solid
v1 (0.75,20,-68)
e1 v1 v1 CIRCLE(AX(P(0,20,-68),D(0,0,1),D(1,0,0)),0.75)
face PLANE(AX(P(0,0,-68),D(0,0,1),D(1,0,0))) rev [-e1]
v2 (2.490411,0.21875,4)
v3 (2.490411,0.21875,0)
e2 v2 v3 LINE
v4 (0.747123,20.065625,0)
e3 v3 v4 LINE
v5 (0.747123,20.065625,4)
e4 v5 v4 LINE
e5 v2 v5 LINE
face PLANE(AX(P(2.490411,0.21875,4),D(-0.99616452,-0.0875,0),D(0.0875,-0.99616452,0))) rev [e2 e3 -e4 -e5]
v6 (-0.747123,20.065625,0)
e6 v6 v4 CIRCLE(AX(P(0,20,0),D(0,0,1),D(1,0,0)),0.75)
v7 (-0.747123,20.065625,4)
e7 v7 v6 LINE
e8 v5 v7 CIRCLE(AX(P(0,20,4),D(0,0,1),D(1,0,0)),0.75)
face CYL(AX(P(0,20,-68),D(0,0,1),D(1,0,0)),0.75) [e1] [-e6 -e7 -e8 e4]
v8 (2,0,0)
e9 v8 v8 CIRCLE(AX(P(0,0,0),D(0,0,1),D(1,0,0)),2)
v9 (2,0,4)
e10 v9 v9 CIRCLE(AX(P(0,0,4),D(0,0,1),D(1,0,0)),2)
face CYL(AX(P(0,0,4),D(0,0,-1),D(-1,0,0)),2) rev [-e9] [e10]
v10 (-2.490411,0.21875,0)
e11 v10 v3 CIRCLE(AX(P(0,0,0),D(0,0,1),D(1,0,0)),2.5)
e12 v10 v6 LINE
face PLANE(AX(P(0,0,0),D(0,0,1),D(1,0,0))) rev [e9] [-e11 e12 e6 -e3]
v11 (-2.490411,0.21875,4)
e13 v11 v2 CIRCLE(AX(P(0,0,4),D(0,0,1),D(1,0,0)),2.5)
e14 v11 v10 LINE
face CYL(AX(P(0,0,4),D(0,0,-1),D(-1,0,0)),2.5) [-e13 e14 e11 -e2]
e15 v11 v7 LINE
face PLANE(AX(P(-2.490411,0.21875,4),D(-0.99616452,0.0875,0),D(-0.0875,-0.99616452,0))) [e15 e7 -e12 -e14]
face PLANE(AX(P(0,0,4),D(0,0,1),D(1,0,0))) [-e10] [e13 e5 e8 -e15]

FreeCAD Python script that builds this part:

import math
import FreeCAD as App
import Part
import Sketcher
from FreeCAD import Vector
Q = App.Units.Quantity

doc = App.newDocument("Part")
body = doc.addObject("PartDesign::Body", "Body")

# Sketch on XY plane
sketch1 = body.newObject("Sketcher::SketchObject", "Sketch")
sketch1.AttachmentSupport = (doc.getObject("XY_Plane"), [""])
sketch1.MapMode = "FlatFace"
sketch1.addGeometry(Part.LineSegment(Vector(-0.747123, 20.065625, 0), Vector(-2.490411, 0.21875, 0)), False)
sketch1.addGeometry(Part.ArcOfCircle(Part.Circle(Vector(0, 0, 0), Vector(0, 0, 1), 2.5), math.radians(174.9802), math.radians(365.0198)), False)
sketch1.addGeometry(Part.LineSegment(Vector(2.490411, 0.21875, 0), Vector(0.747123, 20.065625, 0)), False)
sketch1.addGeometry(Part.ArcOfCircle(Part.Circle(Vector(0, 20, 0), Vector(0, 0, 1), 0.75), math.radians(174.9802), math.radians(365.0198)), False)
sketch1.addGeometry(Part.Circle(Vector(0, 0, 0), Vector(0, 0, 1), 2), False)
sketch1.addConstraint(Sketcher.Constraint("Tangent", 0, 2, 1, 1))
sketch1.addConstraint(Sketcher.Constraint("Tangent", 1, 2, 2, 1))
sketch1.addConstraint(Sketcher.Constraint("Tangent", 2, 2, 3, 2))
sketch1.addConstraint(Sketcher.Constraint("Tangent", 3, 1, 0, 1))
sketch1.addConstraint(Sketcher.Constraint("Coincident", 1, 3, -1, 1))
sketch1.addConstraint(Sketcher.Constraint("Coincident", 4, 3, -1, 1))
sketch1.addConstraint(Sketcher.Constraint("PointOnObject", 3, 3, -2))
sketch1.addConstraint(Sketcher.Constraint("Diameter", 4, Q("4 mm")))
sketch1.addConstraint(Sketcher.Constraint("Radius", 1, Q("2.5 mm")))
sketch1.addConstraint(Sketcher.Constraint("Radius", 3, Q("0.75 mm")))
sketch1.addConstraint(Sketcher.Constraint("DistanceY", -1, 1, 3, 3, Q("20 mm")))
pad1 = body.newObject("PartDesign::Pad", "Pad")
pad1.Profile = sketch1
pad1.Length = 4

# Sketch on XY plane
sketch2 = body.newObject("Sketcher::SketchObject", "Sketch001")
sketch2.AttachmentSupport = (doc.getObject("XY_Plane"), [""])
sketch2.MapMode = "FlatFace"
sketch2.addGeometry(Part.Circle(Vector(0, 20, 0), Vector(0, 0, 1), 0.75), False)
sketch2.addConstraint(Sketcher.Constraint("PointOnObject", 0, 3, -2))
sketch2.addConstraint(Sketcher.Constraint("Diameter", 0, Q("1.5 mm")))
sketch2.addConstraint(Sketcher.Constraint("DistanceY", -1, 1, 0, 3, Q("20 mm")))
pad2 = body.newObject("PartDesign::Pad", "Pad001")
pad2.Profile = sketch2
pad2.Type = "TwoLengths"
pad2.Length = 4
pad2.Length2 = 68

doc.recompute()
